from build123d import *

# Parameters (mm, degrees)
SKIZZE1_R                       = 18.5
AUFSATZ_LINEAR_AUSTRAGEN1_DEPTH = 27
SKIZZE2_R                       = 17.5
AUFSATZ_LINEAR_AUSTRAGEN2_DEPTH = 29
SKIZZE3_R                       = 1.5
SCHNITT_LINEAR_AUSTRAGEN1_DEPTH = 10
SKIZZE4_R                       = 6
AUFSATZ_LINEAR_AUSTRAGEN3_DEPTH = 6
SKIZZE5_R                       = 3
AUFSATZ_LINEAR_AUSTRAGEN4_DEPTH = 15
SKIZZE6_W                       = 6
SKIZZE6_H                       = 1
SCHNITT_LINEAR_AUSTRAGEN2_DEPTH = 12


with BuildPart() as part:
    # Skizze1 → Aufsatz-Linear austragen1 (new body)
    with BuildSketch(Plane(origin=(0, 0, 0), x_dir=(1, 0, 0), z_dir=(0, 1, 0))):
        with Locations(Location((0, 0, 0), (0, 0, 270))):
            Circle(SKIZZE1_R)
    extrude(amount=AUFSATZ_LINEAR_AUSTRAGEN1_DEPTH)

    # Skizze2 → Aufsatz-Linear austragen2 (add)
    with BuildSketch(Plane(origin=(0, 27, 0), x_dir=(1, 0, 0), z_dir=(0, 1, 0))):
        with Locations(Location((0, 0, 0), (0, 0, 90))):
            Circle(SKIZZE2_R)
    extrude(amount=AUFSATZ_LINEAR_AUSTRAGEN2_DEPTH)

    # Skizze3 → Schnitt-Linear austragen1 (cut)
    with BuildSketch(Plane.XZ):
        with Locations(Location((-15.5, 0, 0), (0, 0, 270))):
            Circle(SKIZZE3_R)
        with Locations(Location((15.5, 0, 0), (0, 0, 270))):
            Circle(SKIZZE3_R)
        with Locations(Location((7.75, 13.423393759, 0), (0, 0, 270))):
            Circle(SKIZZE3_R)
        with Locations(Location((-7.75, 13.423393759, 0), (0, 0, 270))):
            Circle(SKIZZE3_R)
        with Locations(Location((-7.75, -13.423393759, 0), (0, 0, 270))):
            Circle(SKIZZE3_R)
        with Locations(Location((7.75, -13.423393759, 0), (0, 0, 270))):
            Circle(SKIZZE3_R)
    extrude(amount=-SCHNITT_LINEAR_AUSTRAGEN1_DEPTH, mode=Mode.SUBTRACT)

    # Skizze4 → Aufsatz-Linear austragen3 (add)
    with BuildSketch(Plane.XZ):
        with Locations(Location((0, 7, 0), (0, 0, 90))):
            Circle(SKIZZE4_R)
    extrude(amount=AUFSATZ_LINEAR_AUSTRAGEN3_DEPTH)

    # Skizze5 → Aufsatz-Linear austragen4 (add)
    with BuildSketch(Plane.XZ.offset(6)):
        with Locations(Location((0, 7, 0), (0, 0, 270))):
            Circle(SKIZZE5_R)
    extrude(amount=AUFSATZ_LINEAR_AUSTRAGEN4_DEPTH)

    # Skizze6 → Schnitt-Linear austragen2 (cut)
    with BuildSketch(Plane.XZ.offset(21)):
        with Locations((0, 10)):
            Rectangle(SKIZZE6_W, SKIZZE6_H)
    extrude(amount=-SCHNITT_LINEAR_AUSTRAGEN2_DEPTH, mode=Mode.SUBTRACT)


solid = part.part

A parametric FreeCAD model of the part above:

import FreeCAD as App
import Part
import Sketcher

V = App.Vector
Q = App.Units.Quantity


def add_polygon(sketch, points):
    """Adds a closed chain of lines whose ends are joined by coincident constraints."""
    first, n = sketch.GeometryCount, len(points)
    for a, b in zip(points, points[1:] + points[:1]):
        sketch.addGeometry(Part.LineSegment(App.Vector(*a, 0), App.Vector(*b, 0)), False)
    for i in range(n):
        sketch.addConstraint(Sketcher.Constraint("Coincident", first + i, 2, first + (i + 1) % n, 1))

doc = App.newDocument("Part")
body = doc.addObject("PartDesign::Body", "Body")

# Sketch on XZ plane
sketch1 = doc.addObject("Sketcher::SketchObject", "Sketch")
body.addObject(sketch1)
sketch1.AttachmentSupport = (doc.XZ_Plane, [""])
sketch1.MapMode = "FlatFace"
sketch1.addGeometry(Part.Circle(V(0, 0, 0), V(0, 0, 1), 18), False)
sketch1.addConstraint(Sketcher.Constraint("Coincident", 0, 3, -1, 1))
sketch1.addConstraint(Sketcher.Constraint("Diameter", 0, Q("37 mm")))
pad1 = doc.addObject("PartDesign::Pad", "Pad")
body.addObject(pad1)
pad1.Profile = sketch1
pad1.Length = 27
pad1.Reversed = True

# Sketch on XZ plane
sketch2 = doc.addObject("Sketcher::SketchObject", "Sketch001")
body.addObject(sketch2)
sketch2.AttachmentSupport = (doc.XZ_Plane, [""])
sketch2.MapMode = "FlatFace"
sketch2.AttachmentOffset = App.Placement(V(0, 0, -27), App.Rotation())
sketch2.addGeometry(Part.Circle(V(0, 0, 0), V(0, 0, 1), 18), False)
sketch2.addConstraint(Sketcher.Constraint("Coincident", 0, 3, -1, 1))
sketch2.addConstraint(Sketcher.Constraint("Diameter", 0, Q("35 mm")))
pad2 = doc.addObject("PartDesign::Pad", "Pad001")
body.addObject(pad2)
pad2.Profile = sketch2
pad2.Length = 29
pad2.Reversed = True

# Sketch on XZ plane
sketch3 = doc.addObject("Sketcher::SketchObject", "Sketch002")
body.addObject(sketch3)
sketch3.AttachmentSupport = (doc.XZ_Plane, [""])
sketch3.MapMode = "FlatFace"
sketch3.addGeometry(Part.Circle(V(-15.5, 0, 0), V(0, 0, 1), 1.5), False)
sketch3.addGeometry(Part.Circle(V(15.5, 0, 0), V(0, 0, 1), 1.5), False)
sketch3.addGeometry(Part.Circle(V(7.8, 13.4, 0), V(0, 0, 1), 1.5), False)
sketch3.addGeometry(Part.Circle(V(-7.8, 13.4, 0), V(0, 0, 1), 1.5), False)
sketch3.addGeometry(Part.Circle(V(-7.8, -13.4, 0), V(0, 0, 1), 1.5), False)
sketch3.addGeometry(Part.Circle(V(7.8, -13.4, 0), V(0, 0, 1), 1.5), False)
sketch3.addConstraint(Sketcher.Constraint("Equal", 0, 1))
sketch3.addConstraint(Sketcher.Constraint("Equal", 1, 2))
sketch3.addConstraint(Sketcher.Constraint("Equal", 2, 3))
sketch3.addConstraint(Sketcher.Constraint("Equal", 3, 4))
sketch3.addConstraint(Sketcher.Constraint("Equal", 4, 5))
sketch3.addConstraint(Sketcher.Constraint("Symmetric", 0, 3, 1, 3, -1, 1))
sketch3.addConstraint(Sketcher.Constraint("Symmetric", 2, 3, 4, 3, -1, 1))
sketch3.addConstraint(Sketcher.Constraint("Symmetric", 3, 3, 5, 3, -1, 1))
sketch3.addConstraint(Sketcher.Constraint("Symmetric", 2, 3, 3, 3, -2))
sketch3.addConstraint(Sketcher.Constraint("PointOnObject", 0, 3, -1))
sketch3.addConstraint(Sketcher.Constraint("Diameter", 0, Q("3 mm")))
sketch3.addConstraint(Sketcher.Constraint("DistanceX", 0, 3, 1, 3, Q("31 mm")))
sketch3.addConstraint(Sketcher.Constraint("DistanceX", 3, 3, 2, 3, Q("15.5 mm")))
sketch3.addConstraint(Sketcher.Constraint("DistanceY", -1, 1, 2, 3, Q("13.423394 mm")))
pocket1 = doc.addObject("PartDesign::Pocket", "Pocket")
body.addObject(pocket1)
pocket1.Profile = sketch3
pocket1.Length = 10

# Sketch on XZ plane
sketch4 = doc.addObject("Sketcher::SketchObject", "Sketch003")
body.addObject(sketch4)
sketch4.AttachmentSupport = (doc.XZ_Plane, [""])
sketch4.MapMode = "FlatFace"
sketch4.addGeometry(Part.Circle(V(0, 7, 0), V(0, 0, 1), 6), False)
sketch4.addConstraint(Sketcher.Constraint("PointOnObject", 0, 3, -2))
sketch4.addConstraint(Sketcher.Constraint("Diameter", 0, Q("12 mm")))
sketch4.addConstraint(Sketcher.Constraint("DistanceY", -1, 1, 0, 3, Q("7 mm")))
pad3 = doc.addObject("PartDesign::Pad", "Pad002")
body.addObject(pad3)
pad3.Profile = sketch4
pad3.Length = 6

# Sketch on XZ plane
sketch5 = doc.addObject("Sketcher::SketchObject", "Sketch004")
body.addObject(sketch5)
sketch5.AttachmentSupport = (doc.XZ_Plane, [""])
sketch5.MapMode = "FlatFace"
sketch5.AttachmentOffset = App.Placement(V(0, 0, 6), App.Rotation())
sketch5.addGeometry(Part.Circle(V(0, 7, 0), V(0, 0, 1), 3), False)
sketch5.addConstraint(Sketcher.Constraint("PointOnObject", 0, 3, -2))
sketch5.addConstraint(Sketcher.Constraint("Diameter", 0, Q("6 mm")))
sketch5.addConstraint(Sketcher.Constraint("DistanceY", -1, 1, 0, 3, Q("7 mm")))
pad4 = doc.addObject("PartDesign::Pad", "Pad003")
body.addObject(pad4)
pad4.Profile = sketch5
pad4.Length = 15

# Sketch on XZ plane
sketch6 = doc.addObject("Sketcher::SketchObject", "Sketch005")
body.addObject(sketch6)
sketch6.AttachmentSupport = (doc.XZ_Plane, [""])
sketch6.MapMode = "FlatFace"
sketch6.AttachmentOffset = App.Placement(V(0, 0, 21), App.Rotation())
add_polygon(sketch6, [(-3, 10.5), (-3, 9.5), (3, 9.5), (3, 10.5)])  # lines 0-3
sketch6.addConstraint(Sketcher.Constraint("Vertical", 0))
sketch6.addConstraint(Sketcher.Constraint("Horizontal", 1))
sketch6.addConstraint(Sketcher.Constraint("Vertical", 2))
sketch6.addConstraint(Sketcher.Constraint("Horizontal", 3))
sketch6.addConstraint(Sketcher.Constraint("DistanceX", 1, 1, 1, 2, Q("6 mm")))
sketch6.addConstraint(Sketcher.Constraint("DistanceY", 0, 2, 0, 1, Q("1 mm")))
sketch6.addConstraint(Sketcher.Constraint("DistanceX", 0, 2, -1, 1, Q("3 mm")))
sketch6.addConstraint(Sketcher.Constraint("DistanceY", -1, 1, 0, 2, Q("9.5 mm")))
pocket2 = doc.addObject("PartDesign::Pocket", "Pocket001")
body.addObject(pocket2)
pocket2.Profile = sketch6
pocket2.Length = 12

doc.recompute()
